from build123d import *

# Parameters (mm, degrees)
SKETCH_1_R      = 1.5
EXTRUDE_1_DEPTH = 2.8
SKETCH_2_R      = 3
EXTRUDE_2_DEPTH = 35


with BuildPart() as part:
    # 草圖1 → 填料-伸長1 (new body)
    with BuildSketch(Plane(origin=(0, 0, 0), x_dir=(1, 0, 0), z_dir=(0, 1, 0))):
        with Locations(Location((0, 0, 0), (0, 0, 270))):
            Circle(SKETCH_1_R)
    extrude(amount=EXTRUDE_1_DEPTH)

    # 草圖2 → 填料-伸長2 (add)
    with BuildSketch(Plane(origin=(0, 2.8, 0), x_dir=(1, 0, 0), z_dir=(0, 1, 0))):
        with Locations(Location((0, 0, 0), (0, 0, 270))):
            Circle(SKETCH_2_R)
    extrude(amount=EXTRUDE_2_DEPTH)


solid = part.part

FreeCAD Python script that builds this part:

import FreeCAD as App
import Part
import Sketcher

V = App.Vector

doc = App.newDocument("Part")
body = doc.addObject("PartDesign::Body", "Body")

# Sketch on XZ plane
sketch1 = body.newObject("Sketcher::SketchObject", "Sketch")
sketch1.AttachmentSupport = (doc.getObject("XZ_Plane"), [""])
sketch1.MapMode = "FlatFace"
sketch1.addGeometry(Part.Circle(V(0, 0, 0), V(0, 0, 1), 1.5), False)
sketch1.addConstraint([
    Sketcher.Constraint("Coincident", 0, 3, -1, 1),
    Sketcher.Constraint("Diameter", 0, 3.0),
])
pad1 = body.newObject("PartDesign::Pad", "Pad")
pad1.Profile = sketch1
pad1.Length = 2.8
pad1.Reversed = True

# Sketch on XZ plane
sketch2 = body.newObject("Sketcher::SketchObject", "Sketch001")
sketch2.AttachmentSupport = (doc.getObject("XZ_Plane"), [""])
sketch2.MapMode = "FlatFace"
sketch2.AttachmentOffset = App.Placement(V(0, 0, -2.8), App.Rotation())
sketch2.addGeometry(Part.Circle(V(0, 0, 0), V(0, 0, 1), 3), False)
sketch2.addConstraint([
    Sketcher.Constraint("Coincident", 0, 3, -1, 1),
    Sketcher.Constraint("Diameter", 0, 6.0),
])
pad2 = body.newObject("PartDesign::Pad", "Pad001")
pad2.Profile = sketch2
pad2.Length = 35
pad2.Reversed = True

doc.recompute()
